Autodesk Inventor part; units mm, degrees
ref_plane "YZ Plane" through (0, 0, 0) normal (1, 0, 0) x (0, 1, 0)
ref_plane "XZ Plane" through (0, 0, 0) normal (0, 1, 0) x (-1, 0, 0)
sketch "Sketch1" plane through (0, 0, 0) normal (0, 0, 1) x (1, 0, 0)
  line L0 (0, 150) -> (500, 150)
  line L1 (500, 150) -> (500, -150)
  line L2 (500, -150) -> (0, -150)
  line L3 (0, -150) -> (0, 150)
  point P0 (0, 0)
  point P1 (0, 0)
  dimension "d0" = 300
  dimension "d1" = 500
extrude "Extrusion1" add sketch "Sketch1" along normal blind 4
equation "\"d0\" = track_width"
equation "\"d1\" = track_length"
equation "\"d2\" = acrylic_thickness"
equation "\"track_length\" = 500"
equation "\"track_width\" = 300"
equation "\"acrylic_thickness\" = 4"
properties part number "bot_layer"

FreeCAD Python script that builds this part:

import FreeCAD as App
import Part
import Sketcher
from FreeCAD import Vector

doc = App.newDocument("Part")
params = doc.addObject("Spreadsheet::Sheet", "Params")
for row, (alias, value) in enumerate([
    ("sketch1_width", "500 mm"),
    ("sketch1_height", "300 mm"),
    ("pad1_length", "4 mm"),
], start=1):
    params.set(f"A{row}", alias)
    params.set(f"B{row}", "=" + value)
    params.setAlias(f"B{row}", alias)

body = doc.addObject("PartDesign::Body", "Body")

sketch1 = doc.addObject("Sketcher::SketchObject", "Sketch")
body.addObject(sketch1)
sketch1.AttachmentSupport = (doc.XY_Plane, [""])
sketch1.MapMode = "FlatFace"
sketch1.addGeometry([
    Part.LineSegment(Vector(500, 150, 0), Vector(0, 150, 0)),
    Part.LineSegment(Vector(0, 150, 0), Vector(0, -150, 0)),
    Part.LineSegment(Vector(0, -150, 0), Vector(500, -150, 0)),
    Part.LineSegment(Vector(500, -150, 0), Vector(500, 150, 0)),
], False)
sketch1.addConstraint([
    Sketcher.Constraint("Coincident", 0, 2, 1, 1),
    Sketcher.Constraint("Coincident", 1, 2, 2, 1),
    Sketcher.Constraint("Coincident", 2, 2, 3, 1),
    Sketcher.Constraint("Coincident", 3, 2, 0, 1),
    Sketcher.Constraint("Horizontal", 0),
    Sketcher.Constraint("Vertical", 1),
    Sketcher.Constraint("Horizontal", 2),
    Sketcher.Constraint("Vertical", 3),
    Sketcher.Constraint("Symmetric", 0, 2, 1, 2, -1, 1),
    Sketcher.Constraint("DistanceX", 0, 2, 0, 1, 500.0),
    Sketcher.Constraint("DistanceY", 1, 2, 1, 1, 300.0),
])
sketch1.setExpression("Constraints[9]", "Params.sketch1_width")
sketch1.setExpression("Constraints[10]", "Params.sketch1_height")
pad1 = doc.addObject("PartDesign::Pad", "Pad")
body.addObject(pad1)
pad1.Profile = sketch1
pad1.setExpression("Length", "Params.pad1_length")

doc.recompute()
